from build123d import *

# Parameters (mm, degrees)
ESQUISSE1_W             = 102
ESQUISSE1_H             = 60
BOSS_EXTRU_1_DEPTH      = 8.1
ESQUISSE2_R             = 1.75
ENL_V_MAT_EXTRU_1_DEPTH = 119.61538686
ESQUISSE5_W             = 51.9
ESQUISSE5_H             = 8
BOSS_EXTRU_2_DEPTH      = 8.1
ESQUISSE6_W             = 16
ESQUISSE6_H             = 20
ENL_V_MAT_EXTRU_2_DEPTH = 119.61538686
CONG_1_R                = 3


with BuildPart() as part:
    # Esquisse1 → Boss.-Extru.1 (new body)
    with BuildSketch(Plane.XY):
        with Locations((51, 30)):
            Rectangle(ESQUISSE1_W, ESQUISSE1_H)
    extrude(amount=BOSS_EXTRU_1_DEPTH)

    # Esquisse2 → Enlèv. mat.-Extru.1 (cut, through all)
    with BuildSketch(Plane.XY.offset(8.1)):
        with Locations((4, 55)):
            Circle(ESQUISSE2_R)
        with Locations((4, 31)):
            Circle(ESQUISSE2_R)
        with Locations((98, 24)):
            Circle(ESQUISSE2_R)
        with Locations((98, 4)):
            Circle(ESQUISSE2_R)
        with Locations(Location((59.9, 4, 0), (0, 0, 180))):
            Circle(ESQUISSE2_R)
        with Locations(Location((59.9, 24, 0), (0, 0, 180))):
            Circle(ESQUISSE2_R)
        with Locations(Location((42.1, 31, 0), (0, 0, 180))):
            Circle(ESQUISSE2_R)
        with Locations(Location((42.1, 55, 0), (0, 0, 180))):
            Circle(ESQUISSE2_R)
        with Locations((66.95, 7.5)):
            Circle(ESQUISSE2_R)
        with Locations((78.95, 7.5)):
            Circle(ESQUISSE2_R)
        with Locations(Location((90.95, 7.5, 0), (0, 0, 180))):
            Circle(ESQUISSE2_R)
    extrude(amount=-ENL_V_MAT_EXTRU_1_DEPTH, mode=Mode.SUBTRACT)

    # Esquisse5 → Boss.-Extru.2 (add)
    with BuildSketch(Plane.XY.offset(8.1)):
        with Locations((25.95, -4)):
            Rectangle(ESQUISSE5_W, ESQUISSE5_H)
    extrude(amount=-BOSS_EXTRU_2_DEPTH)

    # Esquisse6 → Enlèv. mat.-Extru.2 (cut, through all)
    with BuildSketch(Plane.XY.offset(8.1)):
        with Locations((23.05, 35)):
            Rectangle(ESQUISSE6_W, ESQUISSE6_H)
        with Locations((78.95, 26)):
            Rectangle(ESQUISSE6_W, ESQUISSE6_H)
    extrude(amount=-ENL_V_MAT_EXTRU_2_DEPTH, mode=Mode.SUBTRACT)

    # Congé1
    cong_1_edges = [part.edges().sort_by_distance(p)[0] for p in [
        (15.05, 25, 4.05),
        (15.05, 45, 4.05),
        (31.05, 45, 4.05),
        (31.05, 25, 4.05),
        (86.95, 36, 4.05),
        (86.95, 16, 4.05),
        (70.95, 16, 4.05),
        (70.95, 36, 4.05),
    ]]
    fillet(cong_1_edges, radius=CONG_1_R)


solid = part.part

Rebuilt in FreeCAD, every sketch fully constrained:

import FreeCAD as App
import Part
import Sketcher
from FreeCAD import Vector


def edges_at(feature, points):
    """Names of the edges that pass closest to the given points."""
    edges = feature.Shape.Edges
    near = lambda p: min(range(len(edges)), key=lambda i: edges[i].distToShape(Part.Vertex(*p))[0])
    return sorted({f"Edge{near(p) + 1}" for p in points})

doc = App.newDocument("Part")
params = doc.addObject("Spreadsheet::Sheet", "Params")
for row, (alias, value) in enumerate([
    ("sketch1_width", "102 mm"),
    ("sketch1_height", "60 mm"),
    ("pad1_length", "8.1 mm"),
    ("sketch2_diameter", "3.5 mm"),
    ("sketch3_height", "8 mm"),
    ("sketch3_width", "51.9 mm"),
    ("pad2_length", "8.1 mm"),
    ("sketch4_width", "16 mm"),
    ("sketch4_height", "20 mm"),
    ("fillet_radius", "3 mm"),
], start=1):
    params.set(f"A{row}", alias)
    params.set(f"B{row}", "=" + value)
    params.setAlias(f"B{row}", alias)

body = doc.addObject("PartDesign::Body", "Body")

# Sketch on XY plane
sketch1 = body.newObject("Sketcher::SketchObject", "Sketch")
sketch1.AttachmentSupport = (doc.getObject("XY_Plane"), [""])
sketch1.MapMode = "FlatFace"
sketch1.addGeometry(Part.LineSegment(Vector(0, 60, 0), Vector(0, 0, 0)), False)
sketch1.addGeometry(Part.LineSegment(Vector(0, 0, 0), Vector(102, 0, 0)), False)
sketch1.addGeometry(Part.LineSegment(Vector(102, 0, 0), Vector(102, 60, 0)), False)
sketch1.addGeometry(Part.LineSegment(Vector(102, 60, 0), Vector(0, 60, 0)), False)
sketch1.addConstraint(Sketcher.Constraint("Coincident", 0, 2, 1, 1))
sketch1.addConstraint(Sketcher.Constraint("Coincident", 1, 2, 2, 1))
sketch1.addConstraint(Sketcher.Constraint("Coincident", 2, 2, 3, 1))
sketch1.addConstraint(Sketcher.Constraint("Coincident", 3, 2, 0, 1))
sketch1.addConstraint(Sketcher.Constraint("Vertical", 0))
sketch1.addConstraint(Sketcher.Constraint("Horizontal", 1))
sketch1.addConstraint(Sketcher.Constraint("Vertical", 2))
sketch1.addConstraint(Sketcher.Constraint("Horizontal", 3))
sketch1.addConstraint(Sketcher.Constraint("Coincident", 0, 2, -1, 1))
sketch1.addConstraint(Sketcher.Constraint("DistanceX", 1, 1, 1, 2, 102.0))
sketch1.addConstraint(Sketcher.Constraint("DistanceY", 0, 2, 0, 1, 60.0))
sketch1.setExpression("Constraints[9]", "Params.sketch1_width")
sketch1.setExpression("Constraints[10]", "Params.sketch1_height")
pad1 = body.newObject("PartDesign::Pad", "Pad")
pad1.Profile = sketch1
pad1.setExpression("Length", "Params.pad1_length")

# Sketch on XY plane
sketch2 = body.newObject("Sketcher::SketchObject", "Sketch001")
sketch2.AttachmentSupport = (doc.getObject("XY_Plane"), [""])
sketch2.MapMode = "FlatFace"
sketch2.AttachmentOffset = App.Placement(Vector(0, 0, 8.1), App.Rotation())
sketch2.addGeometry(Part.Circle(Vector(4, 55, 0), Vector(0, 0, 1), 1.8), False)
sketch2.addGeometry(Part.Circle(Vector(4, 31, 0), Vector(0, 0, 1), 1.8), False)
sketch2.addGeometry(Part.Circle(Vector(98, 24, 0), Vector(0, 0, 1), 1.8), False)
sketch2.addGeometry(Part.Circle(Vector(98, 4, 0), Vector(0, 0, 1), 1.8), False)
sketch2.addGeometry(Part.Circle(Vector(59.9, 4, 0), Vector(0, 0, 1), 1.8), False)
sketch2.addGeometry(Part.Circle(Vector(59.9, 24, 0), Vector(0, 0, 1), 1.8), False)
sketch2.addGeometry(Part.Circle(Vector(42.1, 31, 0), Vector(0, 0, 1), 1.8), False)
sketch2.addGeometry(Part.Circle(Vector(42.1, 55, 0), Vector(0, 0, 1), 1.8), False)
sketch2.addGeometry(Part.Circle(Vector(67, 7.5, 0), Vector(0, 0, 1), 1.8), False)
sketch2.addGeometry(Part.Circle(Vector(79, 7.5, 0), Vector(0, 0, 1), 1.8), False)
sketch2.addGeometry(Part.Circle(Vector(91, 7.5, 0), Vector(0, 0, 1), 1.8), False)
sketch2.addConstraint(Sketcher.Constraint("Equal", 0, 1))
sketch2.addConstraint(Sketcher.Constraint("Equal", 1, 2))
sketch2.addConstraint(Sketcher.Constraint("Equal", 2, 3))
sketch2.addConstraint(Sketcher.Constraint("Equal", 3, 4))
sketch2.addConstraint(Sketcher.Constraint("Equal", 4, 5))
sketch2.addConstraint(Sketcher.Constraint("Equal", 5, 6))
sketch2.addConstraint(Sketcher.Constraint("Equal", 6, 7))
sketch2.addConstraint(Sketcher.Constraint("Equal", 7, 8))
sketch2.addConstraint(Sketcher.Constraint("Equal", 8, 9))
sketch2.addConstraint(Sketcher.Constraint("Equal", 9, 10))
sketch2.addConstraint(Sketcher.Constraint("Horizontal", 3, 3, 4, 3))
sketch2.addConstraint(Sketcher.Constraint("Horizontal", 2, 3, 5, 3))
sketch2.addConstraint(Sketcher.Constraint("Horizontal", 1, 3, 6, 3))
sketch2.addConstraint(Sketcher.Constraint("Horizontal", 0, 3, 7, 3))
sketch2.addConstraint(Sketcher.Constraint("Horizontal", 8, 3, 9, 3))
sketch2.addConstraint(Sketcher.Constraint("Horizontal", 9, 3, 10, 3))
sketch2.addConstraint(Sketcher.Constraint("Vertical", 0, 3, 1, 3))
sketch2.addConstraint(Sketcher.Constraint("Vertical", 2, 3, 3, 3))
sketch2.addConstraint(Sketcher.Constraint("Vertical", 4, 3, 5, 3))
sketch2.addConstraint(Sketcher.Constraint("Vertical", 6, 3, 7, 3))
sketch2.addConstraint(Sketcher.Constraint("Diameter", 0, 3.5))
sketch2.addConstraint(Sketcher.Constraint("DistanceX", -1, 1, 0, 3, 4.0))
sketch2.addConstraint(Sketcher.Constraint("DistanceY", -1, 1, 0, 3, 55.0))
sketch2.addConstraint(Sketcher.Constraint("DistanceY", -1, 1, 1, 3, 31.0))
sketch2.addConstraint(Sketcher.Constraint("DistanceX", -1, 1, 2, 3, 98.0))
sketch2.addConstraint(Sketcher.Constraint("DistanceY", -1, 1, 2, 3, 24.0))
sketch2.addConstraint(Sketcher.Constraint("DistanceY", -1, 1, 3, 3, 4.0))
sketch2.addConstraint(Sketcher.Constraint("DistanceX", 8, 3, 9, 3, 12.0))
sketch2.addConstraint(Sketcher.Constraint("DistanceX", 9, 3, 10, 3, 12.0))
sketch2.addConstraint(Sketcher.Constraint("DistanceX", -1, 1, 4, 3, 59.9))
sketch2.addConstraint(Sketcher.Constraint("DistanceX", -1, 1, 6, 3, 42.1))
sketch2.addConstraint(Sketcher.Constraint("DistanceY", -1, 1, 8, 3, 7.5))
sketch2.addConstraint(Sketcher.Constraint("DistanceX", -1, 1, 8, 3, 66.95))
sketch2.setExpression("Constraints[20]", "Params.sketch2_diameter")
pocket1 = body.newObject("PartDesign::Pocket", "Pocket")
pocket1.Profile = sketch2
pocket1.Type = "ThroughAll"

# Sketch on XY plane
sketch3 = body.newObject("Sketcher::SketchObject", "Sketch002")
sketch3.AttachmentSupport = (doc.getObject("XY_Plane"), [""])
sketch3.MapMode = "FlatFace"
sketch3.AttachmentOffset = App.Placement(Vector(0, 0, 8.1), App.Rotation())
sketch3.addGeometry(Part.LineSegment(Vector(0, 0, 0), Vector(0, -8, 0)), False)
sketch3.addGeometry(Part.LineSegment(Vector(0, -8, 0), Vector(52, -8, 0)), False)
sketch3.addGeometry(Part.LineSegment(Vector(52, -8, 0), Vector(52, 0, 0)), False)
sketch3.addGeometry(Part.LineSegment(Vector(52, 0, 0), Vector(0, 0, 0)), False)
sketch3.addConstraint(Sketcher.Constraint("Coincident", 0, 2, 1, 1))
sketch3.addConstraint(Sketcher.Constraint("Coincident", 1, 2, 2, 1))
sketch3.addConstraint(Sketcher.Constraint("Coincident", 2, 2, 3, 1))
sketch3.addConstraint(Sketcher.Constraint("Coincident", 3, 2, 0, 1))
sketch3.addConstraint(Sketcher.Constraint("Vertical", 0))
sketch3.addConstraint(Sketcher.Constraint("Horizontal", 1))
sketch3.addConstraint(Sketcher.Constraint("Vertical", 2))
sketch3.addConstraint(Sketcher.Constraint("Horizontal", 3))
sketch3.addConstraint(Sketcher.Constraint("Coincident", 3, 2, -1, 1))
sketch3.addConstraint(Sketcher.Constraint("DistanceY", 0, 2, 0, 1, 8.0))
sketch3.addConstraint(Sketcher.Constraint("DistanceX", 1, 1, 1, 2, 51.9))
sketch3.setExpression("Constraints[9]", "Params.sketch3_height")
sketch3.setExpression("Constraints[10]", "Params.sketch3_width")
pad2 = body.newObject("PartDesign::Pad", "Pad001")
pad2.Profile = sketch3
pad2.setExpression("Length", "Params.pad2_length")
pad2.Reversed = True

# Sketch on XY plane
sketch4 = body.newObject("Sketcher::SketchObject", "Sketch003")
sketch4.AttachmentSupport = (doc.getObject("XY_Plane"), [""])
sketch4.MapMode = "FlatFace"
sketch4.AttachmentOffset = App.Placement(Vector(0, 0, 8.1), App.Rotation())
sketch4.addGeometry(Part.LineSegment(Vector(15, 45, 0), Vector(15, 25, 0)), False)
sketch4.addGeometry(Part.LineSegment(Vector(15, 25, 0), Vector(31, 25, 0)), False)
sketch4.addGeometry(Part.LineSegment(Vector(31, 25, 0), Vector(31, 45, 0)), False)
sketch4.addGeometry(Part.LineSegment(Vector(31, 45, 0), Vector(15, 45, 0)), False)
sketch4.addGeometry(Part.LineSegment(Vector(71, 36, 0), Vector(71, 16, 0)), False)
sketch4.addGeometry(Part.LineSegment(Vector(71, 16, 0), Vector(87, 16, 0)), False)
sketch4.addGeometry(Part.LineSegment(Vector(87, 16, 0), Vector(87, 36, 0)), False)
sketch4.addGeometry(Part.LineSegment(Vector(87, 36, 0), Vector(71, 36, 0)), False)
sketch4.addConstraint(Sketcher.Constraint("Coincident", 0, 2, 1, 1))
sketch4.addConstraint(Sketcher.Constraint("Coincident", 1, 2, 2, 1))
sketch4.addConstraint(Sketcher.Constraint("Coincident", 2, 2, 3, 1))
sketch4.addConstraint(Sketcher.Constraint("Coincident", 3, 2, 0, 1))
sketch4.addConstraint(Sketcher.Constraint("Coincident", 4, 2, 5, 1))
sketch4.addConstraint(Sketcher.Constraint("Coincident", 5, 2, 6, 1))
sketch4.addConstraint(Sketcher.Constraint("Coincident", 6, 2, 7, 1))
sketch4.addConstraint(Sketcher.Constraint("Coincident", 7, 2, 4, 1))
sketch4.addConstraint(Sketcher.Constraint("Vertical", 0))
sketch4.addConstraint(Sketcher.Constraint("Horizontal", 1))
sketch4.addConstraint(Sketcher.Constraint("Vertical", 2))
sketch4.addConstraint(Sketcher.Constraint("Horizontal", 3))
sketch4.addConstraint(Sketcher.Constraint("Vertical", 4))
sketch4.addConstraint(Sketcher.Constraint("Horizontal", 5))
sketch4.addConstraint(Sketcher.Constraint("Vertical", 6))
sketch4.addConstraint(Sketcher.Constraint("Horizontal", 7))
sketch4.addConstraint(Sketcher.Constraint("Equal", 3, 5))
sketch4.addConstraint(Sketcher.Constraint("Equal", 2, 4))
sketch4.addConstraint(Sketcher.Constraint("DistanceX", 1, 1, 1, 2, 16.0))
sketch4.addConstraint(Sketcher.Constraint("DistanceY", 0, 2, 0, 1, 20.0))
sketch4.addConstraint(Sketcher.Constraint("DistanceY", -1, 1, 0, 2, 25.0))
sketch4.addConstraint(Sketcher.Constraint("DistanceY", -1, 1, 4, 2, 16.0))
sketch4.addConstraint(Sketcher.Constraint("DistanceX", 1, 2, 4, 2, 39.9))
sketch4.addConstraint(Sketcher.Constraint("DistanceX", -1, 1, 0, 2, 15.05))
sketch4.setExpression("Constraints[18]", "Params.sketch4_width")
sketch4.setExpression("Constraints[19]", "Params.sketch4_height")
pocket2 = body.newObject("PartDesign::Pocket", "Pocket001")
pocket2.Profile = sketch4
pocket2.Type = "ThroughAll"
doc.recompute()

fillet = body.newObject("PartDesign::Fillet", "Fillet")
fillet.Base = (pocket2, edges_at(pocket2, [
    (15.05, 25, 4.05),
    (15.05, 45, 4.05),
    (31.05, 45, 4.05),
    (31.05, 25, 4.05),
    (86.95, 36, 4.05),
    (86.95, 16, 4.05),
    (70.95, 16, 4.05),
    (70.95, 36, 4.05),
]))
fillet.setExpression("Radius", "Params.fillet_radius")

doc.recompute()
